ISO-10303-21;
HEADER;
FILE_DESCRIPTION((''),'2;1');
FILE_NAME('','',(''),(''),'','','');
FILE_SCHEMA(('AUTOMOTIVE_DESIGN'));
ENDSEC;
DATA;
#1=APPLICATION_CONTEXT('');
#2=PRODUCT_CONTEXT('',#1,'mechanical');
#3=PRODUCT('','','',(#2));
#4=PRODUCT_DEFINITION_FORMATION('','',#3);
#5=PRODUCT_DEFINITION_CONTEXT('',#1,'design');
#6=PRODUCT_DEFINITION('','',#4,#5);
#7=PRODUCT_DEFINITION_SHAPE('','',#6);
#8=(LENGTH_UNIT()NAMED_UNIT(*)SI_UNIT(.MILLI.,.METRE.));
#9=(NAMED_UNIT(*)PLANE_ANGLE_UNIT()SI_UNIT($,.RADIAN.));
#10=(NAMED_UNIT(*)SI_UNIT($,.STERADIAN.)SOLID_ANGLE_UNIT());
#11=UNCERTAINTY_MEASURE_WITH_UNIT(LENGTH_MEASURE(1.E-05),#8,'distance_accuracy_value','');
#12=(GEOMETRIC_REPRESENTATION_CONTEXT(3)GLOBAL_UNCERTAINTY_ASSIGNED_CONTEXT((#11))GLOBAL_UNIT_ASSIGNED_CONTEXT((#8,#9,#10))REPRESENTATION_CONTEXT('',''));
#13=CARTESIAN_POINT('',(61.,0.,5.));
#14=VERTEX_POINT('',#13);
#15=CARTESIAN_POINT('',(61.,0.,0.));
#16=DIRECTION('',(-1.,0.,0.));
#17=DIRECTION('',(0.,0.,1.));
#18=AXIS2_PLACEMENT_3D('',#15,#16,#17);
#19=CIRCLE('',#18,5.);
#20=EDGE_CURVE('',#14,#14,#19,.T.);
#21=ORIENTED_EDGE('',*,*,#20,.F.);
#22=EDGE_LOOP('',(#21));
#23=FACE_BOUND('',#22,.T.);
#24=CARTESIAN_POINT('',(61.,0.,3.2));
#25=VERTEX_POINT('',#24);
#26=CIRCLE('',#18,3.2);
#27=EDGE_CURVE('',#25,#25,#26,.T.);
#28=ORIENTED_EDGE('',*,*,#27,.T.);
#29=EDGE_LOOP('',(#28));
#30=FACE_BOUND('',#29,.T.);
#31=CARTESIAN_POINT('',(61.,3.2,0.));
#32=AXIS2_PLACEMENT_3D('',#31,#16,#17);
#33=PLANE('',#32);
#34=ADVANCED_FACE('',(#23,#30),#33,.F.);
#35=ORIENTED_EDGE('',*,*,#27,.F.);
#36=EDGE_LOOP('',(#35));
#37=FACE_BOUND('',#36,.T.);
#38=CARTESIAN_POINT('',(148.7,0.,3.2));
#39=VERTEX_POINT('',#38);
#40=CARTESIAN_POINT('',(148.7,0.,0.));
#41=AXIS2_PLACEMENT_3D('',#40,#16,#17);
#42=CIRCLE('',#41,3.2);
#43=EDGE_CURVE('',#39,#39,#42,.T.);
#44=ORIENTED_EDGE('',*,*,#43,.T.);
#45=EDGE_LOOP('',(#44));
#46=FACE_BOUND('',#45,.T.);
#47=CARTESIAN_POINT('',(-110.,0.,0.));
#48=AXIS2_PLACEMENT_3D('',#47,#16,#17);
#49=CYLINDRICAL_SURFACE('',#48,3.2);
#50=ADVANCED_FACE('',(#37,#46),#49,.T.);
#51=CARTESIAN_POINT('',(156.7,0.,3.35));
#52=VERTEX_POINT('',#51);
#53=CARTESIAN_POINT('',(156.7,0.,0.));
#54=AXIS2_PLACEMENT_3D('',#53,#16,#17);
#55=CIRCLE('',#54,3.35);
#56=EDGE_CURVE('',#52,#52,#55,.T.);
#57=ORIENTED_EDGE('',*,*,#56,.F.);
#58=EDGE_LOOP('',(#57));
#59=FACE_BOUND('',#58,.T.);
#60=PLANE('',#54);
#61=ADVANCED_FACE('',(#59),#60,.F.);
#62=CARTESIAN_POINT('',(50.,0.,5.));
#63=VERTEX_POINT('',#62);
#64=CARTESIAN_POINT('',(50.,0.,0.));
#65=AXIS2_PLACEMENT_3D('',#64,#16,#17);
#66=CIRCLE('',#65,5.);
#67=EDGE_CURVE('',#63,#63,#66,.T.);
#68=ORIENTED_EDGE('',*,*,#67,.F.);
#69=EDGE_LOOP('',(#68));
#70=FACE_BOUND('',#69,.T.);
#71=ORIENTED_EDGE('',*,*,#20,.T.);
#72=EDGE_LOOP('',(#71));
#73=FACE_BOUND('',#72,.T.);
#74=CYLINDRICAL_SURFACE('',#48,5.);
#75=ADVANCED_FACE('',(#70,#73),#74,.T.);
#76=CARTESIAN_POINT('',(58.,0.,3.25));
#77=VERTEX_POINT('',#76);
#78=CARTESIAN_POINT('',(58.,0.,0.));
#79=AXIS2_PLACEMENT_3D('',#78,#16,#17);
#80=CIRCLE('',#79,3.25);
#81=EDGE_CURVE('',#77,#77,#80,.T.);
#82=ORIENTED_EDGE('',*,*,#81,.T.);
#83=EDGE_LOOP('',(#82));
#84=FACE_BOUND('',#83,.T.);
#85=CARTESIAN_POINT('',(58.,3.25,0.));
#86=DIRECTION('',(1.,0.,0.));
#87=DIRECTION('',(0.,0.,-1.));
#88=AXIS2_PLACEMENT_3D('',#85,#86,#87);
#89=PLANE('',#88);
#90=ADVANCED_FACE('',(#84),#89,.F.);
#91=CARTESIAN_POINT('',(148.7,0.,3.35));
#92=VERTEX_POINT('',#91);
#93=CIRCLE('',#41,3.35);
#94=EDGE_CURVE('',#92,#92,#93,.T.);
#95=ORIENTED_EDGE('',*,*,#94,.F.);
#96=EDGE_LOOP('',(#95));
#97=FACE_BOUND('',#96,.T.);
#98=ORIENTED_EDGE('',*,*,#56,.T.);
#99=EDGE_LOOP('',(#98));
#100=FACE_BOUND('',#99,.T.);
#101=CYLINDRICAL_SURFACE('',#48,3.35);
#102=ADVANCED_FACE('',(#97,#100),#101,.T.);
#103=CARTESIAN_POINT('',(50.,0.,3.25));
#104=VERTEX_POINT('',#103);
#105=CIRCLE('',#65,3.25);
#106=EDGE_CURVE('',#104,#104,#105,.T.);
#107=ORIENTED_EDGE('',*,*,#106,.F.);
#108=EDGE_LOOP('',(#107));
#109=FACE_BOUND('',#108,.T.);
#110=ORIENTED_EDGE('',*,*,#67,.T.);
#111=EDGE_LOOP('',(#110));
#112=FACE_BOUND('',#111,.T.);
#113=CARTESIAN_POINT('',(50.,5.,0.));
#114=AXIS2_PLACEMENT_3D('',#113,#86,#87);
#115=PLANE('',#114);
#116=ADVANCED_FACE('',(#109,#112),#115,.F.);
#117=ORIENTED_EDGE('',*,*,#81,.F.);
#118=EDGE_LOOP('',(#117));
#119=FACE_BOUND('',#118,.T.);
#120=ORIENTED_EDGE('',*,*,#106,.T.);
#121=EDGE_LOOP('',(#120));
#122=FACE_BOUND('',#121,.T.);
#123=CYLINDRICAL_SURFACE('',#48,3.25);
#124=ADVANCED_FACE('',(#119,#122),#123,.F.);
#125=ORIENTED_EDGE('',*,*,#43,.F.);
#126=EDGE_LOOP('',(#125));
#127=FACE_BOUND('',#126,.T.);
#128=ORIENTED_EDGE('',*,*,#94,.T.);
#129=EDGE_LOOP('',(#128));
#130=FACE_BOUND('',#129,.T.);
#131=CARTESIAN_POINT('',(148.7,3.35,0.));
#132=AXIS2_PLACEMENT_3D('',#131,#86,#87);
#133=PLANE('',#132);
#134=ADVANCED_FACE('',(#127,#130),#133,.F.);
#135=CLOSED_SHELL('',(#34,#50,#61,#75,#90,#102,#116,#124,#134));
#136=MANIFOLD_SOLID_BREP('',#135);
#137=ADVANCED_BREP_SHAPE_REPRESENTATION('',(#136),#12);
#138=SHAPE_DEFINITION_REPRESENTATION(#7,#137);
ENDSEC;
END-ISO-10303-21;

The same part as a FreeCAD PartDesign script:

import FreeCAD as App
import Part
import Sketcher
from FreeCAD import Vector
Q = App.Units.Quantity

doc = App.newDocument("Part")
params = doc.addObject("Spreadsheet::Sheet", "Params")
for row, (alias, value) in enumerate([
    ("sketch1_width", "8 mm"),
    ("sketch1_width2", "11 mm"),
    ("sketch1_width3", "98.7 mm"),
    ("sketch1_height", "1.8 mm"),
    ("sketch1_height2", "3.25 mm"),
    ("revolution_angle", "360 deg"),
], start=1):
    params.set(f"A{row}", alias)
    params.set(f"B{row}", "=" + value)
    params.setAlias(f"B{row}", alias)

body = doc.addObject("PartDesign::Body", "Body")

# Sketch on XY plane
sketch1 = body.newObject("Sketcher::SketchObject", "Sketch")
sketch1.AttachmentSupport = (doc.getObject("XY_Plane"), [""])
sketch1.MapMode = "FlatFace"
sketch1.addGeometry([
    Part.LineSegment(Vector(50, 3.25, 0), Vector(58, 3.25, 0)),  # 0
    Part.LineSegment(Vector(58, 3.25, 0), Vector(58, 0, 0)),  # 1
    Part.LineSegment(Vector(58, 0, 0), Vector(156.7, 0, 0)),  # 2
    Part.LineSegment(Vector(156.7, 0, 0), Vector(156.7, 3.35, 0)),  # 3
    Part.LineSegment(Vector(156.7, 3.35, 0), Vector(148.7, 3.35, 0)),  # 4
    Part.LineSegment(Vector(148.7, 3.35, 0), Vector(148.7, 3.2, 0)),  # 5
    Part.LineSegment(Vector(148.7, 3.2, 0), Vector(61, 3.2, 0)),  # 6
    Part.LineSegment(Vector(61, 3.2, 0), Vector(61, 5, 0)),  # 7
    Part.LineSegment(Vector(61, 5, 0), Vector(50, 5, 0)),  # 8
    Part.LineSegment(Vector(50, 5, 0), Vector(50, 3.25, 0)),  # 9
], False)
sketch1.addConstraint([
    Sketcher.Constraint("Coincident", 0, 2, 1, 1),
    Sketcher.Constraint("Coincident", 1, 2, 2, 1),
    Sketcher.Constraint("Coincident", 2, 2, 3, 1),
    Sketcher.Constraint("Coincident", 3, 2, 4, 1),
    Sketcher.Constraint("Coincident", 4, 2, 5, 1),
    Sketcher.Constraint("Coincident", 5, 2, 6, 1),
    Sketcher.Constraint("Coincident", 6, 2, 7, 1),
    Sketcher.Constraint("Coincident", 7, 2, 8, 1),
    Sketcher.Constraint("Coincident", 8, 2, 9, 1),
    Sketcher.Constraint("Coincident", 9, 2, 0, 1),
    Sketcher.Constraint("Horizontal", 0),
    Sketcher.Constraint("Vertical", 1),
    Sketcher.Constraint("Horizontal", 2),
    Sketcher.Constraint("Vertical", 3),
    Sketcher.Constraint("Horizontal", 4),
    Sketcher.Constraint("Vertical", 5),
    Sketcher.Constraint("Horizontal", 6),
    Sketcher.Constraint("Vertical", 7),
    Sketcher.Constraint("Horizontal", 8),
    Sketcher.Constraint("Vertical", 9),
    Sketcher.Constraint("PointOnObject", 1, 2, -1),
    Sketcher.Constraint("Equal", 0, 4),
    Sketcher.Constraint("DistanceX", 0, 1, 0, 2, Q("8 mm")),
    Sketcher.Constraint("DistanceX", 8, 2, 8, 1, Q("11 mm")),
    Sketcher.Constraint("DistanceX", 2, 1, 2, 2, Q("98.7 mm")),
    Sketcher.Constraint("DistanceY", 7, 1, 7, 2, Q("1.8 mm")),
    Sketcher.Constraint("DistanceX", -1, 1, 0, 2, Q("58 mm")),
    Sketcher.Constraint("DistanceY", -1, 1, 7, 2, Q("5 mm")),
    Sketcher.Constraint("DistanceY", 1, 2, 1, 1, Q("3.25 mm")),
    Sketcher.Constraint("DistanceY", 3, 1, 3, 2, Q("3.35 mm")),
])
sketch1.setExpression("Constraints[22]", "Params.sketch1_width")
sketch1.setExpression("Constraints[23]", "Params.sketch1_width2")
sketch1.setExpression("Constraints[24]", "Params.sketch1_width3")
sketch1.setExpression("Constraints[25]", "Params.sketch1_height")
sketch1.setExpression("Constraints[28]", "Params.sketch1_height2")
revolution = body.newObject("PartDesign::Revolution", "Revolution")
revolution.Profile = sketch1
revolution.ReferenceAxis = (sketch1, ["H_Axis"])
revolution.setExpression("Angle", "Params.revolution_angle")

doc.recompute()
